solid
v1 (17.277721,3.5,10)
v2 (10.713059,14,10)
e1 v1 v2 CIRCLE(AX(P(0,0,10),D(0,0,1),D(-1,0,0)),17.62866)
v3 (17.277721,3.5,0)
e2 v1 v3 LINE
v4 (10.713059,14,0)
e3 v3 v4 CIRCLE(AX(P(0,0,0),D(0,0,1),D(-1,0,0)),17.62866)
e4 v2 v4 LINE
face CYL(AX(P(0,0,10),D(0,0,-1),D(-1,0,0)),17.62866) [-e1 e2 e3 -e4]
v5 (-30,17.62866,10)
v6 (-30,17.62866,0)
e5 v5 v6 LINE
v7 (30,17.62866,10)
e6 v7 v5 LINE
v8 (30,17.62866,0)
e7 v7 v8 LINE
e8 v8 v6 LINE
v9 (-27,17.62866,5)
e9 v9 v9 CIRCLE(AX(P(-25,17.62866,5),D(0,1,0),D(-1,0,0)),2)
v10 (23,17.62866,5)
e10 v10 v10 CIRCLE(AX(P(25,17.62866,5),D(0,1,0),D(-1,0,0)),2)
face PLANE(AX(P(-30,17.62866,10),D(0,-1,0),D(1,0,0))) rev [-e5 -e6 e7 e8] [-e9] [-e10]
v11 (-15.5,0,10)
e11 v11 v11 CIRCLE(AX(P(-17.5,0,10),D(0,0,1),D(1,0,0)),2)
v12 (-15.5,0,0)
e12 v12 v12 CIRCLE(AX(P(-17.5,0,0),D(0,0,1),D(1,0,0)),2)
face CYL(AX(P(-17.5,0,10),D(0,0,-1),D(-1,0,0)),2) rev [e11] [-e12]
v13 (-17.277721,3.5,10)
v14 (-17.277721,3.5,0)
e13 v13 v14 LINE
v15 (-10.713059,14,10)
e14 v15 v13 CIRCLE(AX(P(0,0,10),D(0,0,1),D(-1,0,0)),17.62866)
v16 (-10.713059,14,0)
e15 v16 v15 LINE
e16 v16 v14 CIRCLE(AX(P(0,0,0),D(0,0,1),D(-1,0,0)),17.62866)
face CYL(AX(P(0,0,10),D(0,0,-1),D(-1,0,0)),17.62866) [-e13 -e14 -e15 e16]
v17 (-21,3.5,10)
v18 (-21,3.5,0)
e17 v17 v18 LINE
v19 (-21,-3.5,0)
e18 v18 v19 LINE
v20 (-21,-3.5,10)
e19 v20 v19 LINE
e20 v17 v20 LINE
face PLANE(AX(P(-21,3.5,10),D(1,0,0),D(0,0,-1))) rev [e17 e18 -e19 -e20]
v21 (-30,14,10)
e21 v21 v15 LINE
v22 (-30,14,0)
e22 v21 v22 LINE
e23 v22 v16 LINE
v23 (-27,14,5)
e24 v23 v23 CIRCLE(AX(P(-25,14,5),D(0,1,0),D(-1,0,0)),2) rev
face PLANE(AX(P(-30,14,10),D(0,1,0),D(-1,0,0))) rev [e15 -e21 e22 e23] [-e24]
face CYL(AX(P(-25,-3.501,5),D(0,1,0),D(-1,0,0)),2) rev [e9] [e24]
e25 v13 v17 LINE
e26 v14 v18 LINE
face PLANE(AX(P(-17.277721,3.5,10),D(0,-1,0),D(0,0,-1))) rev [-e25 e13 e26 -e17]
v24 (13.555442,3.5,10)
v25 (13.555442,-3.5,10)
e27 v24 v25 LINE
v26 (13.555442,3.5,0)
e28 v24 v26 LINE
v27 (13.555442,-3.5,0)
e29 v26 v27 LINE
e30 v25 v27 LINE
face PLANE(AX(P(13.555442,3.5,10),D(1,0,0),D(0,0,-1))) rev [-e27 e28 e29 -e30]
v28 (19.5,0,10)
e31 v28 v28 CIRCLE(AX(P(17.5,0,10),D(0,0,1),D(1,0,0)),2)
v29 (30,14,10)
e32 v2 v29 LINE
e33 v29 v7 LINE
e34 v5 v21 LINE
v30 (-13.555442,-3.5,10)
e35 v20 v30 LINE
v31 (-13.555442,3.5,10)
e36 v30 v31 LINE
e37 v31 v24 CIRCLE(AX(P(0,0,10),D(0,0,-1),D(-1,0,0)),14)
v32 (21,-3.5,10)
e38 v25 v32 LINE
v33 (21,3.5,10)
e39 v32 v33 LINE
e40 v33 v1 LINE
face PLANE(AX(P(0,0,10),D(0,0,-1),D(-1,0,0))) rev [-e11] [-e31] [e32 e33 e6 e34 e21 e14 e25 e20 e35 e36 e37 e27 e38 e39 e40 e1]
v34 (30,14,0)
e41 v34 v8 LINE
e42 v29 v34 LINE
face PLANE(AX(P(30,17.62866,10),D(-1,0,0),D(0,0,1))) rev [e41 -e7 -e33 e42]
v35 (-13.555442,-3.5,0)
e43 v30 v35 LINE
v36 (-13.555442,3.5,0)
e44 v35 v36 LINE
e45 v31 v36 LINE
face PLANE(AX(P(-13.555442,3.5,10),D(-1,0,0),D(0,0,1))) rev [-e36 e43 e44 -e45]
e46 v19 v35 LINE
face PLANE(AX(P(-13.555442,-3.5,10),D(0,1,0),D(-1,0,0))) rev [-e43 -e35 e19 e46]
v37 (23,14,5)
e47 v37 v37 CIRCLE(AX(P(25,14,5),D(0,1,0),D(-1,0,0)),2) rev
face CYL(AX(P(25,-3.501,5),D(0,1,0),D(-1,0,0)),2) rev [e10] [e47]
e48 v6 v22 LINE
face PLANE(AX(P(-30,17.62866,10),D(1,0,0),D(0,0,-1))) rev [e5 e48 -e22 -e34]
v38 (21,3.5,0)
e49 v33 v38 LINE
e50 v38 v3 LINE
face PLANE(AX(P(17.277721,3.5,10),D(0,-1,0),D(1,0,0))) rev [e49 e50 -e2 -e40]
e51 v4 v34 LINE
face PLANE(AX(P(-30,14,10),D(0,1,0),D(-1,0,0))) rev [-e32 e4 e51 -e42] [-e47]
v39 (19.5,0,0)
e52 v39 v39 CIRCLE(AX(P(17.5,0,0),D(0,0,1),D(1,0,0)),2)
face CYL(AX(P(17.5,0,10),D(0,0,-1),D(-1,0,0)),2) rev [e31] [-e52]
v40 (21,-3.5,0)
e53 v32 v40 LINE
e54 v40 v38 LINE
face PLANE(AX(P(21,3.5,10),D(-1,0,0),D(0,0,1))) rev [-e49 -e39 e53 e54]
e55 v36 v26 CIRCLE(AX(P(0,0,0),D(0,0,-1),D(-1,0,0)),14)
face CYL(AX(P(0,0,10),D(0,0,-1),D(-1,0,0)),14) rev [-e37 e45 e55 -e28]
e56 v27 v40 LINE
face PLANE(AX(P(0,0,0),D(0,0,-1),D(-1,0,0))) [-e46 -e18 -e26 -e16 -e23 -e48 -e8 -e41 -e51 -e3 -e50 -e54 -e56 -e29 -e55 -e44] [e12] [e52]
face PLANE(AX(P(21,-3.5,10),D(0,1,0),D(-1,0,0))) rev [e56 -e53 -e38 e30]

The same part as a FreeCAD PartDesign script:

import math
import FreeCAD as App
import Part
import Sketcher
from FreeCAD import Vector


def add_polygon(sketch, points):
    """Adds a closed chain of lines whose ends are joined by coincident constraints."""
    first, n = sketch.GeometryCount, len(points)
    for a, b in zip(points, points[1:] + points[:1]):
        sketch.addGeometry(Part.LineSegment(App.Vector(*a, 0), App.Vector(*b, 0)), False)
    for i in range(n):
        sketch.addConstraint(Sketcher.Constraint("Coincident", first + i, 2, first + (i + 1) % n, 1))

doc = App.newDocument("Part")
body = doc.addObject("PartDesign::Body", "Body")

sketch1 = body.newObject("Sketcher::SketchObject", "Sketch")
sketch1.AttachmentSupport = (doc.getObject("XY_Plane"), [""])
sketch1.MapMode = "FlatFace"
sketch1.addGeometry(Part.LineSegment(Vector(-21, 3.5, 0), Vector(-21, -3.5, 0)), False)
sketch1.addGeometry(Part.LineSegment(Vector(-21, -3.5, 0), Vector(-13.6, -3.5, 0)), False)
sketch1.addGeometry(Part.LineSegment(Vector(-13.6, -3.5, 0), Vector(-13.6, 3.5, 0)), False)
sketch1.addGeometry(Part.ArcOfCircle(Part.Circle(Vector(0, 0, 0), Vector(0, 0, 1), 14), math.radians(14), math.radians(166)), False)
sketch1.addGeometry(Part.LineSegment(Vector(13.6, 3.5, 0), Vector(13.6, -3.5, 0)), False)
sketch1.addGeometry(Part.LineSegment(Vector(13.6, -3.5, 0), Vector(21, -3.5, 0)), False)
sketch1.addGeometry(Part.LineSegment(Vector(21, -3.5, 0), Vector(21, 3.5, 0)), False)
sketch1.addGeometry(Part.LineSegment(Vector(21, 3.5, 0), Vector(17.3, 3.5, 0)), False)
sketch1.addGeometry(Part.ArcOfCircle(Part.Circle(Vector(0, 0, 0), Vector(0, 0, 1), 17.6), math.radians(11), math.radians(169)), False)
sketch1.addGeometry(Part.LineSegment(Vector(-17.3, 3.5, 0), Vector(-21, 3.5, 0)), False)
sketch1.addGeometry(Part.Circle(Vector(-17.5, 0, 0), Vector(0, 0, 1), 2), False)
sketch1.addGeometry(Part.Circle(Vector(17.5, 0, 0), Vector(0, 0, 1), 2), False)
sketch1.addConstraint(Sketcher.Constraint("Coincident", 0, 2, 1, 1))
sketch1.addConstraint(Sketcher.Constraint("Coincident", 1, 2, 2, 1))
sketch1.addConstraint(Sketcher.Constraint("Coincident", 2, 2, 3, 2))
sketch1.addConstraint(Sketcher.Constraint("Coincident", 3, 1, 4, 1))
sketch1.addConstraint(Sketcher.Constraint("Coincident", 4, 2, 5, 1))
sketch1.addConstraint(Sketcher.Constraint("Coincident", 5, 2, 6, 1))
sketch1.addConstraint(Sketcher.Constraint("Coincident", 6, 2, 7, 1))
sketch1.addConstraint(Sketcher.Constraint("Coincident", 7, 2, 8, 1))
sketch1.addConstraint(Sketcher.Constraint("Coincident", 8, 2, 9, 1))
sketch1.addConstraint(Sketcher.Constraint("Coincident", 9, 2, 0, 1))
sketch1.addConstraint(Sketcher.Constraint("Vertical", 0))
sketch1.addConstraint(Sketcher.Constraint("Horizontal", 1))
sketch1.addConstraint(Sketcher.Constraint("Vertical", 2))
sketch1.addConstraint(Sketcher.Constraint("Vertical", 4))
sketch1.addConstraint(Sketcher.Constraint("Horizontal", 5))
sketch1.addConstraint(Sketcher.Constraint("Vertical", 6))
sketch1.addConstraint(Sketcher.Constraint("Horizontal", 7))
sketch1.addConstraint(Sketcher.Constraint("Horizontal", 9))
sketch1.addConstraint(Sketcher.Constraint("Coincident", 3, 3, -1, 1))
sketch1.addConstraint(Sketcher.Constraint("Coincident", 8, 3, -1, 1))
sketch1.addConstraint(Sketcher.Constraint("Equal", 10, 11))
sketch1.addConstraint(Sketcher.Constraint("Symmetric", 10, 3, 11, 3, -1, 1))
sketch1.addConstraint(Sketcher.Constraint("Symmetric", 1, 2, 3, 1, -1, 1))
sketch1.addConstraint(Sketcher.Constraint("Symmetric", 0, 2, 6, 2, -1, 1))
sketch1.addConstraint(Sketcher.Constraint("PointOnObject", 10, 3, -1))
sketch1.addConstraint(Sketcher.Constraint("Horizontal", 1, 2, 4, 2))
sketch1.addConstraint(Sketcher.Constraint("Horizontal", 7, 2, 8, 2))
sketch1.addConstraint(Sketcher.Constraint("Diameter", 10, 4.0))
sketch1.addConstraint(Sketcher.Constraint("Radius", 3, 14.0))
sketch1.addConstraint(Sketcher.Constraint("DistanceY", 0, 2, 0, 1, 7.0))
sketch1.addConstraint(Sketcher.Constraint("DistanceX", 0, 2, -1, 1, 21.0))
sketch1.addConstraint(Sketcher.Constraint("DistanceX", 10, 3, 11, 3, 35.0))
sketch1.addConstraint(Sketcher.Constraint("Radius", 8, 17.62866))
pad1 = body.newObject("PartDesign::Pad", "Pad")
pad1.Profile = sketch1
pad1.Length = 10

sketch2 = body.newObject("Sketcher::SketchObject", "Sketch001")
sketch2.AttachmentSupport = (doc.getObject("XY_Plane"), [""])
sketch2.MapMode = "FlatFace"
add_polygon(sketch2, [(-30, 17.6), (-30, 14), (30, 14), (30, 17.6)])
sketch2.addConstraint(Sketcher.Constraint("Vertical", 0))
sketch2.addConstraint(Sketcher.Constraint("Horizontal", 1))
sketch2.addConstraint(Sketcher.Constraint("Vertical", 2))
sketch2.addConstraint(Sketcher.Constraint("Horizontal", 3))
sketch2.addConstraint(Sketcher.Constraint("DistanceX", 1, 1, 1, 2, 60.0))
sketch2.addConstraint(Sketcher.Constraint("DistanceX", 0, 2, -1, 1, 30.0))
sketch2.addConstraint(Sketcher.Constraint("DistanceY", -1, 1, 0, 2, 14.0))
sketch2.addConstraint(Sketcher.Constraint("DistanceY", 0, 2, 0, 1, 3.62866))
pad2 = body.newObject("PartDesign::Pad", "Pad001")
pad2.Profile = sketch2
pad2.Length = 10

sketch3 = body.newObject("Sketcher::SketchObject", "Sketch002")
sketch3.AttachmentSupport = (doc.getObject("XZ_Plane"), [""])
sketch3.MapMode = "FlatFace"
sketch3.AttachmentOffset = App.Placement(Vector(0, 0, -17.62866), App.Rotation())
sketch3.addGeometry(Part.Circle(Vector(-25, 5, 0), Vector(0, 0, 1), 2), False)
sketch3.addConstraint(Sketcher.Constraint("Diameter", 0, 4.0))
sketch3.addConstraint(Sketcher.Constraint("DistanceX", 0, 3, -1, 1, 25.0))
sketch3.addConstraint(Sketcher.Constraint("DistanceY", -1, 1, 0, 3, 5.0))
pocket1 = body.newObject("PartDesign::Pocket", "Pocket")
pocket1.Profile = sketch3
pocket1.Type = "UpToFirst"
pocket1.Reversed = True

sketch4 = body.newObject("Sketcher::SketchObject", "Sketch003")
sketch4.AttachmentSupport = (doc.getObject("XZ_Plane"), [""])
sketch4.MapMode = "FlatFace"
sketch4.AttachmentOffset = App.Placement(Vector(0, 0, -17.62866), App.Rotation())
sketch4.addGeometry(Part.Circle(Vector(25, 5, 0), Vector(0, 0, 1), 2), False)
sketch4.addConstraint(Sketcher.Constraint("Diameter", 0, 4.0))
sketch4.addConstraint(Sketcher.Constraint("DistanceX", -1, 1, 0, 3, 25.0))
sketch4.addConstraint(Sketcher.Constraint("DistanceY", -1, 1, 0, 3, 5.0))
pocket2 = body.newObject("PartDesign::Pocket", "Pocket001")
pocket2.Profile = sketch4
pocket2.Type = "UpToFirst"
pocket2.Reversed = True

doc.recompute()
